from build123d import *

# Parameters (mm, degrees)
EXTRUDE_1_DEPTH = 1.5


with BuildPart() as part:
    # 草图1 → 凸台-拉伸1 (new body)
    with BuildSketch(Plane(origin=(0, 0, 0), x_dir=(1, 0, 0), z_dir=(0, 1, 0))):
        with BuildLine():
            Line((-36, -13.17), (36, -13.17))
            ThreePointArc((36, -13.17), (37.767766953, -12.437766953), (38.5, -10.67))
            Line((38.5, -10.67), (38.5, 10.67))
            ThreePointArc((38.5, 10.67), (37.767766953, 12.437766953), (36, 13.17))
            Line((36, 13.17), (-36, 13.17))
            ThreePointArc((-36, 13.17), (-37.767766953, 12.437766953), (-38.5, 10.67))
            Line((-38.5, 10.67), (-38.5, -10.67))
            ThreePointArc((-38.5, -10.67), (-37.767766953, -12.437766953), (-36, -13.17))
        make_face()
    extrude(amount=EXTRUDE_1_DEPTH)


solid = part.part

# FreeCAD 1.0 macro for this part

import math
import FreeCAD as App
import Part
import Sketcher
from FreeCAD import Vector
Q = App.Units.Quantity

doc = App.newDocument("Part")
params = doc.addObject("Spreadsheet::Sheet", "Params")
for row, (alias, value) in enumerate([
    ("sketch1_radius", "2.5 mm"),
    ("sketch1_width", "72 mm"),
    ("sketch1_height", "21.34 mm"),
    ("pad1_length", "1.5 mm"),
], start=1):
    params.set(f"A{row}", alias)
    params.set(f"B{row}", "=" + value)
    params.setAlias(f"B{row}", alias)

body = doc.addObject("PartDesign::Body", "Body")

sketch1 = body.newObject("Sketcher::SketchObject", "Sketch")
sketch1.AttachmentSupport = (doc.getObject("XZ_Plane"), [""])
sketch1.MapMode = "FlatFace"
sketch1.addGeometry([
    Part.LineSegment(Vector(-36, 13.17, 0), Vector(36, 13.17, 0)),
    Part.ArcOfCircle(Part.Circle(Vector(36, 10.67, 0), Vector(0, 0, 1), 2.5), math.radians(0), math.radians(90)),
    Part.LineSegment(Vector(38.5, 10.67, 0), Vector(38.5, -10.67, 0)),
    Part.ArcOfCircle(Part.Circle(Vector(36, -10.67, 0), Vector(0, 0, 1), 2.5), math.radians(-90), math.radians(0)),
    Part.LineSegment(Vector(36, -13.17, 0), Vector(-36, -13.17, 0)),
    Part.ArcOfCircle(Part.Circle(Vector(-36, -10.67, 0), Vector(0, 0, 1), 2.5), math.radians(180), math.radians(270)),
    Part.LineSegment(Vector(-38.5, -10.67, 0), Vector(-38.5, 10.67, 0)),
    Part.ArcOfCircle(Part.Circle(Vector(-36, 10.67, 0), Vector(0, 0, 1), 2.5), math.radians(90), math.radians(180)),
], False)
sketch1.addConstraint([
    Sketcher.Constraint("Tangent", 0, 2, 1, 2),
    Sketcher.Constraint("Tangent", 1, 1, 2, 1),
    Sketcher.Constraint("Tangent", 2, 2, 3, 2),
    Sketcher.Constraint("Tangent", 3, 1, 4, 1),
    Sketcher.Constraint("Tangent", 4, 2, 5, 2),
    Sketcher.Constraint("Tangent", 5, 1, 6, 1),
    Sketcher.Constraint("Tangent", 6, 2, 7, 2),
    Sketcher.Constraint("Tangent", 7, 1, 0, 1),
    Sketcher.Constraint("Horizontal", 0),
    Sketcher.Constraint("Vertical", 2),
    Sketcher.Constraint("Horizontal", 4),
    Sketcher.Constraint("Vertical", 6),
    Sketcher.Constraint("Equal", 1, 3),
    Sketcher.Constraint("Equal", 3, 5),
    Sketcher.Constraint("Equal", 5, 7),
    Sketcher.Constraint("Symmetric", 1, 3, 5, 3, -1, 1),
    Sketcher.Constraint("Radius", 1, Q("2.5 mm")),
    Sketcher.Constraint("DistanceX", 0, 1, 0, 2, Q("72 mm")),
    Sketcher.Constraint("DistanceY", 2, 2, 2, 1, Q("21.34 mm")),
])
sketch1.setExpression("Constraints[16]", "Params.sketch1_radius")
sketch1.setExpression("Constraints[17]", "Params.sketch1_width")
sketch1.setExpression("Constraints[18]", "Params.sketch1_height")
pad1 = body.newObject("PartDesign::Pad", "Pad")
pad1.Profile = sketch1
pad1.setExpression("Length", "Params.pad1_length")
pad1.Reversed = True

doc.recompute()
